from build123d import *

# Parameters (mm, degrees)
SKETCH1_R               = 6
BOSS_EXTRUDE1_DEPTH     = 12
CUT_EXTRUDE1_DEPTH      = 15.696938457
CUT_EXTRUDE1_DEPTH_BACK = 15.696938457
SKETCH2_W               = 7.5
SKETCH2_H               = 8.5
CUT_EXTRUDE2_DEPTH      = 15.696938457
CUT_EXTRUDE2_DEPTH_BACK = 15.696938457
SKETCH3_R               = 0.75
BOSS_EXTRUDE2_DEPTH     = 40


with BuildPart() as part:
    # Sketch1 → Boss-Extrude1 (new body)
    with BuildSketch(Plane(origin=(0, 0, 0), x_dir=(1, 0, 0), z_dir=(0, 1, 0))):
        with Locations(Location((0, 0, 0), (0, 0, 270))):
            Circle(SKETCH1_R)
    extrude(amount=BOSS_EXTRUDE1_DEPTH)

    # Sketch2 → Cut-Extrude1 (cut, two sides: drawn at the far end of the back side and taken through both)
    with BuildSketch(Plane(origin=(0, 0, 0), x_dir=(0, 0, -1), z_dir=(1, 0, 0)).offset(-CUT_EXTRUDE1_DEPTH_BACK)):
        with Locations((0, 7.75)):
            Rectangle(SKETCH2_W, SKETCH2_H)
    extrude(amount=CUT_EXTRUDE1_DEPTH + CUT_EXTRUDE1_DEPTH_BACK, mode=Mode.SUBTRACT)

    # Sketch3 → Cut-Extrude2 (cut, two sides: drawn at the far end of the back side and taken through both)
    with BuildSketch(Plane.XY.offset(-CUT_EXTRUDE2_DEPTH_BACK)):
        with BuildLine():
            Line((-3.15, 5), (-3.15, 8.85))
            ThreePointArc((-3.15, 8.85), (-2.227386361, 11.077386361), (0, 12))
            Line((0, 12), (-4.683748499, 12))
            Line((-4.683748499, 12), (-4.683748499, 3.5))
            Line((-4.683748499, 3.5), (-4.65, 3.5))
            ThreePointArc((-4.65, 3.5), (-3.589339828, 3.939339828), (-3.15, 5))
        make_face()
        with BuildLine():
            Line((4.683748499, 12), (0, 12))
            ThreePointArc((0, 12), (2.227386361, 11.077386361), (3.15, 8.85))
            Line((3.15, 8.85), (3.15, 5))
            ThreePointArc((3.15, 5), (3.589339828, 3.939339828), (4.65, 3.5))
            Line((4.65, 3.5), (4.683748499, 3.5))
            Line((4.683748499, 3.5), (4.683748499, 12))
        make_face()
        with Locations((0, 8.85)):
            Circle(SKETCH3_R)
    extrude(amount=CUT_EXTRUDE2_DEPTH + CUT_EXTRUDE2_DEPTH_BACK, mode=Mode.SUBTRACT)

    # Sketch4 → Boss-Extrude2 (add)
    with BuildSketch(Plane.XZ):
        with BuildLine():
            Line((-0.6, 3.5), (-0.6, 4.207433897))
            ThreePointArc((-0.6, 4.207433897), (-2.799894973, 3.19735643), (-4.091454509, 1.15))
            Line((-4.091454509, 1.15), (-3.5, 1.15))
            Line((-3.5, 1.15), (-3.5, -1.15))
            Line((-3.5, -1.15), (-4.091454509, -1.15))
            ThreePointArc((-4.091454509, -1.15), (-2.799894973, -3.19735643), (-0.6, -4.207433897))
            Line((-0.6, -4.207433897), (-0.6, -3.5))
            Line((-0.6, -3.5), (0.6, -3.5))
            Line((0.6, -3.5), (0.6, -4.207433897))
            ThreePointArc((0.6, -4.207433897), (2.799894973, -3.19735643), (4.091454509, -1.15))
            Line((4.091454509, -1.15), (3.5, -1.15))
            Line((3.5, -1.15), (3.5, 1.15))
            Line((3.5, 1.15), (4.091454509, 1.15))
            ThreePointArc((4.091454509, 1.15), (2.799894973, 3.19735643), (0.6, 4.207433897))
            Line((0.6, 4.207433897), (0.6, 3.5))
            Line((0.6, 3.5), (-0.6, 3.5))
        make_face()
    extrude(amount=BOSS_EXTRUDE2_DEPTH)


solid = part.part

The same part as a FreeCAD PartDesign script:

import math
import FreeCAD as App
import Part
import Sketcher
from FreeCAD import Vector
Q = App.Units.Quantity

doc = App.newDocument("Part")
params = doc.addObject("Spreadsheet::Sheet", "Params")
for row, (alias, value) in enumerate([
    ("sketch1_diameter", "12 mm"),
    ("pad1_length", "12 mm"),
    ("sketch2_width", "8.5 mm"),
    ("sketch2_height", "7.5 mm"),
    ("sketch3_diameter", "1.5 mm"),
    ("sketch3_radius", "1.5 mm"),
    ("sketch3_radius2", "3.15 mm"),
    ("sketch3_height", "8.5 mm"),
    ("sketch4_radius", "4.25 mm"),
    ("sketch4_width", "1.2 mm"),
    ("sketch4_height", "2.3 mm"),
    ("pad2_length", "40 mm"),
], start=1):
    params.set(f"A{row}", alias)
    params.set(f"B{row}", "=" + value)
    params.setAlias(f"B{row}", alias)

body = doc.addObject("PartDesign::Body", "Body")

# Sketch on XZ plane
sketch1 = doc.addObject("Sketcher::SketchObject", "Sketch")
body.addObject(sketch1)
sketch1.AttachmentSupport = (doc.XZ_Plane, [""])
sketch1.MapMode = "FlatFace"
sketch1.addGeometry(Part.Circle(Vector(0, 0, 0), Vector(0, 0, 1), 6), False)
sketch1.addConstraint([
    Sketcher.Constraint("Coincident", 0, 3, -1, 1),
    Sketcher.Constraint("Diameter", 0, Q("12 mm")),
])
sketch1.setExpression("Constraints[1]", "Params.sketch1_diameter")
pad1 = doc.addObject("PartDesign::Pad", "Pad")
body.addObject(pad1)
pad1.Profile = sketch1
pad1.setExpression("Length", "Params.pad1_length")
pad1.Reversed = True

# Sketch on YZ plane
sketch2 = doc.addObject("Sketcher::SketchObject", "Sketch001")
body.addObject(sketch2)
sketch2.AttachmentSupport = (doc.YZ_Plane, [""])
sketch2.MapMode = "FlatFace"
sketch2.addGeometry([
    Part.LineSegment(Vector(12, 3.75, 0), Vector(3.5, 3.75, 0)),
    Part.LineSegment(Vector(3.5, 3.75, 0), Vector(3.5, -3.75, 0)),
    Part.LineSegment(Vector(3.5, -3.75, 0), Vector(12, -3.75, 0)),
    Part.LineSegment(Vector(12, -3.75, 0), Vector(12, 3.75, 0)),
], False)
sketch2.addConstraint([
    Sketcher.Constraint("Coincident", 0, 2, 1, 1),
    Sketcher.Constraint("Coincident", 1, 2, 2, 1),
    Sketcher.Constraint("Coincident", 2, 2, 3, 1),
    Sketcher.Constraint("Coincident", 3, 2, 0, 1),
    Sketcher.Constraint("Horizontal", 0),
    Sketcher.Constraint("Vertical", 1),
    Sketcher.Constraint("Horizontal", 2),
    Sketcher.Constraint("Vertical", 3),
    Sketcher.Constraint("DistanceX", 0, 2, 0, 1, Q("8.5 mm")),
    Sketcher.Constraint("DistanceY", 1, 2, 1, 1, Q("7.5 mm")),
    Sketcher.Constraint("DistanceX", -1, 1, 2, 2, Q("12 mm")),
    Sketcher.Constraint("DistanceY", -1, 1, 0, 2, Q("3.75 mm")),
])
sketch2.setExpression("Constraints[8]", "Params.sketch2_width")
sketch2.setExpression("Constraints[9]", "Params.sketch2_height")
pocket1 = doc.addObject("PartDesign::Pocket", "Pocket")
body.addObject(pocket1)
pocket1.Profile = sketch2
pocket1.Type = "ThroughAll"
pocket1.Midplane = True

# Sketch on XY plane
sketch3 = doc.addObject("Sketcher::SketchObject", "Sketch002")
body.addObject(sketch3)
sketch3.AttachmentSupport = (doc.XY_Plane, [""])
sketch3.MapMode = "FlatFace"
sketch3.addGeometry([
    Part.LineSegment(Vector(-3.15, 5, 0), Vector(-3.15, 8.85, 0)),  # 0
    Part.ArcOfCircle(Part.Circle(Vector(0, 8.85, 0), Vector(0, 0, 1), 3.15), math.radians(90), math.radians(180)),  # 1
    Part.LineSegment(Vector(0, 12, 0), Vector(-4.683748, 12, 0)),  # 2
    Part.LineSegment(Vector(-4.683748, 12, 0), Vector(-4.683748, 3.5, 0)),  # 3
    Part.LineSegment(Vector(-4.683748, 3.5, 0), Vector(-4.65, 3.5, 0)),  # 4
    Part.ArcOfCircle(Part.Circle(Vector(-4.65, 5, 0), Vector(0, 0, 1), 1.5), math.radians(-90), math.radians(0)),  # 5
    Part.LineSegment(Vector(4.683748, 12, 0), Vector(0, 12, 0)),  # 6
    Part.ArcOfCircle(Part.Circle(Vector(0, 8.85, 0), Vector(0, 0, 1), 3.15), math.radians(0), math.radians(90)),  # 7
    Part.LineSegment(Vector(3.15, 8.85, 0), Vector(3.15, 5, 0)),  # 8
    Part.ArcOfCircle(Part.Circle(Vector(4.65, 5, 0), Vector(0, 0, 1), 1.5), math.radians(180), math.radians(270)),  # 9
    Part.LineSegment(Vector(4.65, 3.5, 0), Vector(4.683748, 3.5, 0)),  # 10
    Part.LineSegment(Vector(4.683748, 3.5, 0), Vector(4.683748, 12, 0)),  # 11
    Part.Circle(Vector(0, 8.85, 0), Vector(0, 0, 1), 0.75),  # 12
], False)
sketch3.addConstraint([
    Sketcher.Constraint("Tangent", 0, 2, 1, 2),
    Sketcher.Constraint("Tangent", 1, 1, 2, 1),
    Sketcher.Constraint("Coincident", 2, 2, 3, 1),
    Sketcher.Constraint("Coincident", 3, 2, 4, 1),
    Sketcher.Constraint("Tangent", 4, 2, 5, 1),
    Sketcher.Constraint("Tangent", 5, 2, 0, 1),
    Sketcher.Constraint("Tangent", 6, 2, 7, 2),
    Sketcher.Constraint("Tangent", 7, 1, 8, 1),
    Sketcher.Constraint("Tangent", 8, 2, 9, 1),
    Sketcher.Constraint("Tangent", 9, 2, 10, 1),
    Sketcher.Constraint("Coincident", 10, 2, 11, 1),
    Sketcher.Constraint("Coincident", 11, 2, 6, 1),
    Sketcher.Constraint("Vertical", 0),
    Sketcher.Constraint("Horizontal", 2),
    Sketcher.Constraint("Vertical", 3),
    Sketcher.Constraint("Horizontal", 4),
    Sketcher.Constraint("Horizontal", 6),
    Sketcher.Constraint("Vertical", 8),
    Sketcher.Constraint("Horizontal", 10),
    Sketcher.Constraint("Vertical", 11),
    Sketcher.Constraint("Coincident", 7, 3, 1, 3),
    Sketcher.Constraint("Coincident", 12, 3, 1, 3),
    Sketcher.Constraint("Equal", 1, 7),
    Sketcher.Constraint("Equal", 5, 9),
    Sketcher.Constraint("Symmetric", 5, 3, 9, 3, -2),
    Sketcher.Constraint("Equal", 2, 6),
    Sketcher.Constraint("Diameter", 12, Q("1.5 mm")),
    Sketcher.Constraint("Radius", 5, Q("1.5 mm")),
    Sketcher.Constraint("Radius", 1, Q("3.15 mm")),
    Sketcher.Constraint("DistanceY", 3, 2, 3, 1, Q("8.5 mm")),
    Sketcher.Constraint("DistanceY", -1, 1, 5, 3, Q("5 mm")),
    Sketcher.Constraint("DistanceX", 2, 2, 2, 1, Q("4.683748 mm")),
])
sketch3.setExpression("Constraints[26]", "Params.sketch3_diameter")
sketch3.setExpression("Constraints[27]", "Params.sketch3_radius")
sketch3.setExpression("Constraints[28]", "Params.sketch3_radius2")
sketch3.setExpression("Constraints[29]", "Params.sketch3_height")
pocket2 = doc.addObject("PartDesign::Pocket", "Pocket001")
body.addObject(pocket2)
pocket2.Profile = sketch3
pocket2.Type = "ThroughAll"
pocket2.Midplane = True

# Sketch on XZ plane
sketch4 = doc.addObject("Sketcher::SketchObject", "Sketch003")
body.addObject(sketch4)
sketch4.AttachmentSupport = (doc.XZ_Plane, [""])
sketch4.MapMode = "FlatFace"
sketch4.addGeometry([
    Part.LineSegment(Vector(-0.6, 3.5, 0), Vector(-0.6, 4.207434, 0)),  # 0
    Part.ArcOfCircle(Part.Circle(Vector(0, 0, 0), Vector(0, 0, 1), 4.25), math.radians(98.115929), math.radians(164.300727)),  # 1
    Part.LineSegment(Vector(-4.091455, 1.15, 0), Vector(-3.5, 1.15, 0)),  # 2
    Part.LineSegment(Vector(-3.5, 1.15, 0), Vector(-3.5, -1.15, 0)),  # 3
    Part.LineSegment(Vector(-3.5, -1.15, 0), Vector(-4.091455, -1.15, 0)),  # 4
    Part.ArcOfCircle(Part.Circle(Vector(0, 0, 0), Vector(0, 0, 1), 4.25), math.radians(-164.300727), math.radians(-98.115929)),  # 5
    Part.LineSegment(Vector(-0.6, -4.207434, 0), Vector(-0.6, -3.5, 0)),  # 6
    Part.LineSegment(Vector(-0.6, -3.5, 0), Vector(0.6, -3.5, 0)),  # 7
    Part.LineSegment(Vector(0.6, -3.5, 0), Vector(0.6, -4.207434, 0)),  # 8
    Part.ArcOfCircle(Part.Circle(Vector(0, 0, 0), Vector(0, 0, 1), 4.25), math.radians(-81.884071), math.radians(-15.699273)),  # 9
    Part.LineSegment(Vector(4.091455, -1.15, 0), Vector(3.5, -1.15, 0)),  # 10
    Part.LineSegment(Vector(3.5, -1.15, 0), Vector(3.5, 1.15, 0)),  # 11
    Part.LineSegment(Vector(3.5, 1.15, 0), Vector(4.091455, 1.15, 0)),  # 12
    Part.ArcOfCircle(Part.Circle(Vector(0, 0, 0), Vector(0, 0, 1), 4.25), math.radians(15.699273), math.radians(81.884071)),  # 13
    Part.LineSegment(Vector(0.6, 4.207434, 0), Vector(0.6, 3.5, 0)),  # 14
    Part.LineSegment(Vector(0.6, 3.5, 0), Vector(-0.6, 3.5, 0)),  # 15
], False)
sketch4.addConstraint([
    Sketcher.Constraint("Coincident", 0, 2, 1, 1),
    Sketcher.Constraint("Coincident", 1, 2, 2, 1),
    Sketcher.Constraint("Coincident", 2, 2, 3, 1),
    Sketcher.Constraint("Coincident", 3, 2, 4, 1),
    Sketcher.Constraint("Coincident", 4, 2, 5, 1),
    Sketcher.Constraint("Coincident", 5, 2, 6, 1),
    Sketcher.Constraint("Coincident", 6, 2, 7, 1),
    Sketcher.Constraint("Coincident", 7, 2, 8, 1),
    Sketcher.Constraint("Coincident", 8, 2, 9, 1),
    Sketcher.Constraint("Coincident", 9, 2, 10, 1),
    Sketcher.Constraint("Coincident", 10, 2, 11, 1),
    Sketcher.Constraint("Coincident", 11, 2, 12, 1),
    Sketcher.Constraint("Coincident", 12, 2, 13, 1),
    Sketcher.Constraint("Coincident", 13, 2, 14, 1),
    Sketcher.Constraint("Coincident", 14, 2, 15, 1),
    Sketcher.Constraint("Coincident", 15, 2, 0, 1),
    Sketcher.Constraint("Vertical", 0),
    Sketcher.Constraint("Horizontal", 2),
    Sketcher.Constraint("Vertical", 3),
    Sketcher.Constraint("Horizontal", 4),
    Sketcher.Constraint("Vertical", 6),
    Sketcher.Constraint("Horizontal", 7),
    Sketcher.Constraint("Vertical", 8),
    Sketcher.Constraint("Horizontal", 10),
    Sketcher.Constraint("Vertical", 11),
    Sketcher.Constraint("Horizontal", 12),
    Sketcher.Constraint("Vertical", 14),
    Sketcher.Constraint("Horizontal", 15),
    Sketcher.Constraint("Coincident", 1, 3, -1, 1),
    Sketcher.Constraint("Coincident", 5, 3, -1, 1),
    Sketcher.Constraint("Coincident", 9, 3, -1, 1),
    Sketcher.Constraint("Coincident", 13, 3, -1, 1),
    Sketcher.Constraint("Equal", 1, 5),
    Sketcher.Constraint("Equal", 5, 9),
    Sketcher.Constraint("Equal", 9, 13),
    Sketcher.Constraint("Symmetric", 2, 2, 10, 2, -1, 1),
    Sketcher.Constraint("Symmetric", 6, 2, 14, 2, -1, 1),
    Sketcher.Constraint("Horizontal", 5, 2, 8, 2),
    Sketcher.Constraint("Horizontal", 4, 2, 9, 2),
    Sketcher.Constraint("Horizontal", 2, 2, 11, 2),
    Sketcher.Constraint("Horizontal", 0, 2, 13, 2),
    Sketcher.Constraint("Radius", 1, Q("4.25 mm")),
    Sketcher.Constraint("DistanceX", 7, 1, 7, 2, Q("1.2 mm")),
    Sketcher.Constraint("DistanceY", 3, 2, 3, 1, Q("2.3 mm")),
    Sketcher.Constraint("DistanceX", 2, 2, -1, 1, Q("3.5 mm")),
    Sketcher.Constraint("DistanceY", 6, 2, -1, 1, Q("3.5 mm")),
])
sketch4.setExpression("Constraints[41]", "Params.sketch4_radius")
sketch4.setExpression("Constraints[42]", "Params.sketch4_width")
sketch4.setExpression("Constraints[43]", "Params.sketch4_height")
pad2 = doc.addObject("PartDesign::Pad", "Pad001")
body.addObject(pad2)
pad2.Profile = sketch4
pad2.setExpression("Length", "Params.pad2_length")

doc.recompute()
